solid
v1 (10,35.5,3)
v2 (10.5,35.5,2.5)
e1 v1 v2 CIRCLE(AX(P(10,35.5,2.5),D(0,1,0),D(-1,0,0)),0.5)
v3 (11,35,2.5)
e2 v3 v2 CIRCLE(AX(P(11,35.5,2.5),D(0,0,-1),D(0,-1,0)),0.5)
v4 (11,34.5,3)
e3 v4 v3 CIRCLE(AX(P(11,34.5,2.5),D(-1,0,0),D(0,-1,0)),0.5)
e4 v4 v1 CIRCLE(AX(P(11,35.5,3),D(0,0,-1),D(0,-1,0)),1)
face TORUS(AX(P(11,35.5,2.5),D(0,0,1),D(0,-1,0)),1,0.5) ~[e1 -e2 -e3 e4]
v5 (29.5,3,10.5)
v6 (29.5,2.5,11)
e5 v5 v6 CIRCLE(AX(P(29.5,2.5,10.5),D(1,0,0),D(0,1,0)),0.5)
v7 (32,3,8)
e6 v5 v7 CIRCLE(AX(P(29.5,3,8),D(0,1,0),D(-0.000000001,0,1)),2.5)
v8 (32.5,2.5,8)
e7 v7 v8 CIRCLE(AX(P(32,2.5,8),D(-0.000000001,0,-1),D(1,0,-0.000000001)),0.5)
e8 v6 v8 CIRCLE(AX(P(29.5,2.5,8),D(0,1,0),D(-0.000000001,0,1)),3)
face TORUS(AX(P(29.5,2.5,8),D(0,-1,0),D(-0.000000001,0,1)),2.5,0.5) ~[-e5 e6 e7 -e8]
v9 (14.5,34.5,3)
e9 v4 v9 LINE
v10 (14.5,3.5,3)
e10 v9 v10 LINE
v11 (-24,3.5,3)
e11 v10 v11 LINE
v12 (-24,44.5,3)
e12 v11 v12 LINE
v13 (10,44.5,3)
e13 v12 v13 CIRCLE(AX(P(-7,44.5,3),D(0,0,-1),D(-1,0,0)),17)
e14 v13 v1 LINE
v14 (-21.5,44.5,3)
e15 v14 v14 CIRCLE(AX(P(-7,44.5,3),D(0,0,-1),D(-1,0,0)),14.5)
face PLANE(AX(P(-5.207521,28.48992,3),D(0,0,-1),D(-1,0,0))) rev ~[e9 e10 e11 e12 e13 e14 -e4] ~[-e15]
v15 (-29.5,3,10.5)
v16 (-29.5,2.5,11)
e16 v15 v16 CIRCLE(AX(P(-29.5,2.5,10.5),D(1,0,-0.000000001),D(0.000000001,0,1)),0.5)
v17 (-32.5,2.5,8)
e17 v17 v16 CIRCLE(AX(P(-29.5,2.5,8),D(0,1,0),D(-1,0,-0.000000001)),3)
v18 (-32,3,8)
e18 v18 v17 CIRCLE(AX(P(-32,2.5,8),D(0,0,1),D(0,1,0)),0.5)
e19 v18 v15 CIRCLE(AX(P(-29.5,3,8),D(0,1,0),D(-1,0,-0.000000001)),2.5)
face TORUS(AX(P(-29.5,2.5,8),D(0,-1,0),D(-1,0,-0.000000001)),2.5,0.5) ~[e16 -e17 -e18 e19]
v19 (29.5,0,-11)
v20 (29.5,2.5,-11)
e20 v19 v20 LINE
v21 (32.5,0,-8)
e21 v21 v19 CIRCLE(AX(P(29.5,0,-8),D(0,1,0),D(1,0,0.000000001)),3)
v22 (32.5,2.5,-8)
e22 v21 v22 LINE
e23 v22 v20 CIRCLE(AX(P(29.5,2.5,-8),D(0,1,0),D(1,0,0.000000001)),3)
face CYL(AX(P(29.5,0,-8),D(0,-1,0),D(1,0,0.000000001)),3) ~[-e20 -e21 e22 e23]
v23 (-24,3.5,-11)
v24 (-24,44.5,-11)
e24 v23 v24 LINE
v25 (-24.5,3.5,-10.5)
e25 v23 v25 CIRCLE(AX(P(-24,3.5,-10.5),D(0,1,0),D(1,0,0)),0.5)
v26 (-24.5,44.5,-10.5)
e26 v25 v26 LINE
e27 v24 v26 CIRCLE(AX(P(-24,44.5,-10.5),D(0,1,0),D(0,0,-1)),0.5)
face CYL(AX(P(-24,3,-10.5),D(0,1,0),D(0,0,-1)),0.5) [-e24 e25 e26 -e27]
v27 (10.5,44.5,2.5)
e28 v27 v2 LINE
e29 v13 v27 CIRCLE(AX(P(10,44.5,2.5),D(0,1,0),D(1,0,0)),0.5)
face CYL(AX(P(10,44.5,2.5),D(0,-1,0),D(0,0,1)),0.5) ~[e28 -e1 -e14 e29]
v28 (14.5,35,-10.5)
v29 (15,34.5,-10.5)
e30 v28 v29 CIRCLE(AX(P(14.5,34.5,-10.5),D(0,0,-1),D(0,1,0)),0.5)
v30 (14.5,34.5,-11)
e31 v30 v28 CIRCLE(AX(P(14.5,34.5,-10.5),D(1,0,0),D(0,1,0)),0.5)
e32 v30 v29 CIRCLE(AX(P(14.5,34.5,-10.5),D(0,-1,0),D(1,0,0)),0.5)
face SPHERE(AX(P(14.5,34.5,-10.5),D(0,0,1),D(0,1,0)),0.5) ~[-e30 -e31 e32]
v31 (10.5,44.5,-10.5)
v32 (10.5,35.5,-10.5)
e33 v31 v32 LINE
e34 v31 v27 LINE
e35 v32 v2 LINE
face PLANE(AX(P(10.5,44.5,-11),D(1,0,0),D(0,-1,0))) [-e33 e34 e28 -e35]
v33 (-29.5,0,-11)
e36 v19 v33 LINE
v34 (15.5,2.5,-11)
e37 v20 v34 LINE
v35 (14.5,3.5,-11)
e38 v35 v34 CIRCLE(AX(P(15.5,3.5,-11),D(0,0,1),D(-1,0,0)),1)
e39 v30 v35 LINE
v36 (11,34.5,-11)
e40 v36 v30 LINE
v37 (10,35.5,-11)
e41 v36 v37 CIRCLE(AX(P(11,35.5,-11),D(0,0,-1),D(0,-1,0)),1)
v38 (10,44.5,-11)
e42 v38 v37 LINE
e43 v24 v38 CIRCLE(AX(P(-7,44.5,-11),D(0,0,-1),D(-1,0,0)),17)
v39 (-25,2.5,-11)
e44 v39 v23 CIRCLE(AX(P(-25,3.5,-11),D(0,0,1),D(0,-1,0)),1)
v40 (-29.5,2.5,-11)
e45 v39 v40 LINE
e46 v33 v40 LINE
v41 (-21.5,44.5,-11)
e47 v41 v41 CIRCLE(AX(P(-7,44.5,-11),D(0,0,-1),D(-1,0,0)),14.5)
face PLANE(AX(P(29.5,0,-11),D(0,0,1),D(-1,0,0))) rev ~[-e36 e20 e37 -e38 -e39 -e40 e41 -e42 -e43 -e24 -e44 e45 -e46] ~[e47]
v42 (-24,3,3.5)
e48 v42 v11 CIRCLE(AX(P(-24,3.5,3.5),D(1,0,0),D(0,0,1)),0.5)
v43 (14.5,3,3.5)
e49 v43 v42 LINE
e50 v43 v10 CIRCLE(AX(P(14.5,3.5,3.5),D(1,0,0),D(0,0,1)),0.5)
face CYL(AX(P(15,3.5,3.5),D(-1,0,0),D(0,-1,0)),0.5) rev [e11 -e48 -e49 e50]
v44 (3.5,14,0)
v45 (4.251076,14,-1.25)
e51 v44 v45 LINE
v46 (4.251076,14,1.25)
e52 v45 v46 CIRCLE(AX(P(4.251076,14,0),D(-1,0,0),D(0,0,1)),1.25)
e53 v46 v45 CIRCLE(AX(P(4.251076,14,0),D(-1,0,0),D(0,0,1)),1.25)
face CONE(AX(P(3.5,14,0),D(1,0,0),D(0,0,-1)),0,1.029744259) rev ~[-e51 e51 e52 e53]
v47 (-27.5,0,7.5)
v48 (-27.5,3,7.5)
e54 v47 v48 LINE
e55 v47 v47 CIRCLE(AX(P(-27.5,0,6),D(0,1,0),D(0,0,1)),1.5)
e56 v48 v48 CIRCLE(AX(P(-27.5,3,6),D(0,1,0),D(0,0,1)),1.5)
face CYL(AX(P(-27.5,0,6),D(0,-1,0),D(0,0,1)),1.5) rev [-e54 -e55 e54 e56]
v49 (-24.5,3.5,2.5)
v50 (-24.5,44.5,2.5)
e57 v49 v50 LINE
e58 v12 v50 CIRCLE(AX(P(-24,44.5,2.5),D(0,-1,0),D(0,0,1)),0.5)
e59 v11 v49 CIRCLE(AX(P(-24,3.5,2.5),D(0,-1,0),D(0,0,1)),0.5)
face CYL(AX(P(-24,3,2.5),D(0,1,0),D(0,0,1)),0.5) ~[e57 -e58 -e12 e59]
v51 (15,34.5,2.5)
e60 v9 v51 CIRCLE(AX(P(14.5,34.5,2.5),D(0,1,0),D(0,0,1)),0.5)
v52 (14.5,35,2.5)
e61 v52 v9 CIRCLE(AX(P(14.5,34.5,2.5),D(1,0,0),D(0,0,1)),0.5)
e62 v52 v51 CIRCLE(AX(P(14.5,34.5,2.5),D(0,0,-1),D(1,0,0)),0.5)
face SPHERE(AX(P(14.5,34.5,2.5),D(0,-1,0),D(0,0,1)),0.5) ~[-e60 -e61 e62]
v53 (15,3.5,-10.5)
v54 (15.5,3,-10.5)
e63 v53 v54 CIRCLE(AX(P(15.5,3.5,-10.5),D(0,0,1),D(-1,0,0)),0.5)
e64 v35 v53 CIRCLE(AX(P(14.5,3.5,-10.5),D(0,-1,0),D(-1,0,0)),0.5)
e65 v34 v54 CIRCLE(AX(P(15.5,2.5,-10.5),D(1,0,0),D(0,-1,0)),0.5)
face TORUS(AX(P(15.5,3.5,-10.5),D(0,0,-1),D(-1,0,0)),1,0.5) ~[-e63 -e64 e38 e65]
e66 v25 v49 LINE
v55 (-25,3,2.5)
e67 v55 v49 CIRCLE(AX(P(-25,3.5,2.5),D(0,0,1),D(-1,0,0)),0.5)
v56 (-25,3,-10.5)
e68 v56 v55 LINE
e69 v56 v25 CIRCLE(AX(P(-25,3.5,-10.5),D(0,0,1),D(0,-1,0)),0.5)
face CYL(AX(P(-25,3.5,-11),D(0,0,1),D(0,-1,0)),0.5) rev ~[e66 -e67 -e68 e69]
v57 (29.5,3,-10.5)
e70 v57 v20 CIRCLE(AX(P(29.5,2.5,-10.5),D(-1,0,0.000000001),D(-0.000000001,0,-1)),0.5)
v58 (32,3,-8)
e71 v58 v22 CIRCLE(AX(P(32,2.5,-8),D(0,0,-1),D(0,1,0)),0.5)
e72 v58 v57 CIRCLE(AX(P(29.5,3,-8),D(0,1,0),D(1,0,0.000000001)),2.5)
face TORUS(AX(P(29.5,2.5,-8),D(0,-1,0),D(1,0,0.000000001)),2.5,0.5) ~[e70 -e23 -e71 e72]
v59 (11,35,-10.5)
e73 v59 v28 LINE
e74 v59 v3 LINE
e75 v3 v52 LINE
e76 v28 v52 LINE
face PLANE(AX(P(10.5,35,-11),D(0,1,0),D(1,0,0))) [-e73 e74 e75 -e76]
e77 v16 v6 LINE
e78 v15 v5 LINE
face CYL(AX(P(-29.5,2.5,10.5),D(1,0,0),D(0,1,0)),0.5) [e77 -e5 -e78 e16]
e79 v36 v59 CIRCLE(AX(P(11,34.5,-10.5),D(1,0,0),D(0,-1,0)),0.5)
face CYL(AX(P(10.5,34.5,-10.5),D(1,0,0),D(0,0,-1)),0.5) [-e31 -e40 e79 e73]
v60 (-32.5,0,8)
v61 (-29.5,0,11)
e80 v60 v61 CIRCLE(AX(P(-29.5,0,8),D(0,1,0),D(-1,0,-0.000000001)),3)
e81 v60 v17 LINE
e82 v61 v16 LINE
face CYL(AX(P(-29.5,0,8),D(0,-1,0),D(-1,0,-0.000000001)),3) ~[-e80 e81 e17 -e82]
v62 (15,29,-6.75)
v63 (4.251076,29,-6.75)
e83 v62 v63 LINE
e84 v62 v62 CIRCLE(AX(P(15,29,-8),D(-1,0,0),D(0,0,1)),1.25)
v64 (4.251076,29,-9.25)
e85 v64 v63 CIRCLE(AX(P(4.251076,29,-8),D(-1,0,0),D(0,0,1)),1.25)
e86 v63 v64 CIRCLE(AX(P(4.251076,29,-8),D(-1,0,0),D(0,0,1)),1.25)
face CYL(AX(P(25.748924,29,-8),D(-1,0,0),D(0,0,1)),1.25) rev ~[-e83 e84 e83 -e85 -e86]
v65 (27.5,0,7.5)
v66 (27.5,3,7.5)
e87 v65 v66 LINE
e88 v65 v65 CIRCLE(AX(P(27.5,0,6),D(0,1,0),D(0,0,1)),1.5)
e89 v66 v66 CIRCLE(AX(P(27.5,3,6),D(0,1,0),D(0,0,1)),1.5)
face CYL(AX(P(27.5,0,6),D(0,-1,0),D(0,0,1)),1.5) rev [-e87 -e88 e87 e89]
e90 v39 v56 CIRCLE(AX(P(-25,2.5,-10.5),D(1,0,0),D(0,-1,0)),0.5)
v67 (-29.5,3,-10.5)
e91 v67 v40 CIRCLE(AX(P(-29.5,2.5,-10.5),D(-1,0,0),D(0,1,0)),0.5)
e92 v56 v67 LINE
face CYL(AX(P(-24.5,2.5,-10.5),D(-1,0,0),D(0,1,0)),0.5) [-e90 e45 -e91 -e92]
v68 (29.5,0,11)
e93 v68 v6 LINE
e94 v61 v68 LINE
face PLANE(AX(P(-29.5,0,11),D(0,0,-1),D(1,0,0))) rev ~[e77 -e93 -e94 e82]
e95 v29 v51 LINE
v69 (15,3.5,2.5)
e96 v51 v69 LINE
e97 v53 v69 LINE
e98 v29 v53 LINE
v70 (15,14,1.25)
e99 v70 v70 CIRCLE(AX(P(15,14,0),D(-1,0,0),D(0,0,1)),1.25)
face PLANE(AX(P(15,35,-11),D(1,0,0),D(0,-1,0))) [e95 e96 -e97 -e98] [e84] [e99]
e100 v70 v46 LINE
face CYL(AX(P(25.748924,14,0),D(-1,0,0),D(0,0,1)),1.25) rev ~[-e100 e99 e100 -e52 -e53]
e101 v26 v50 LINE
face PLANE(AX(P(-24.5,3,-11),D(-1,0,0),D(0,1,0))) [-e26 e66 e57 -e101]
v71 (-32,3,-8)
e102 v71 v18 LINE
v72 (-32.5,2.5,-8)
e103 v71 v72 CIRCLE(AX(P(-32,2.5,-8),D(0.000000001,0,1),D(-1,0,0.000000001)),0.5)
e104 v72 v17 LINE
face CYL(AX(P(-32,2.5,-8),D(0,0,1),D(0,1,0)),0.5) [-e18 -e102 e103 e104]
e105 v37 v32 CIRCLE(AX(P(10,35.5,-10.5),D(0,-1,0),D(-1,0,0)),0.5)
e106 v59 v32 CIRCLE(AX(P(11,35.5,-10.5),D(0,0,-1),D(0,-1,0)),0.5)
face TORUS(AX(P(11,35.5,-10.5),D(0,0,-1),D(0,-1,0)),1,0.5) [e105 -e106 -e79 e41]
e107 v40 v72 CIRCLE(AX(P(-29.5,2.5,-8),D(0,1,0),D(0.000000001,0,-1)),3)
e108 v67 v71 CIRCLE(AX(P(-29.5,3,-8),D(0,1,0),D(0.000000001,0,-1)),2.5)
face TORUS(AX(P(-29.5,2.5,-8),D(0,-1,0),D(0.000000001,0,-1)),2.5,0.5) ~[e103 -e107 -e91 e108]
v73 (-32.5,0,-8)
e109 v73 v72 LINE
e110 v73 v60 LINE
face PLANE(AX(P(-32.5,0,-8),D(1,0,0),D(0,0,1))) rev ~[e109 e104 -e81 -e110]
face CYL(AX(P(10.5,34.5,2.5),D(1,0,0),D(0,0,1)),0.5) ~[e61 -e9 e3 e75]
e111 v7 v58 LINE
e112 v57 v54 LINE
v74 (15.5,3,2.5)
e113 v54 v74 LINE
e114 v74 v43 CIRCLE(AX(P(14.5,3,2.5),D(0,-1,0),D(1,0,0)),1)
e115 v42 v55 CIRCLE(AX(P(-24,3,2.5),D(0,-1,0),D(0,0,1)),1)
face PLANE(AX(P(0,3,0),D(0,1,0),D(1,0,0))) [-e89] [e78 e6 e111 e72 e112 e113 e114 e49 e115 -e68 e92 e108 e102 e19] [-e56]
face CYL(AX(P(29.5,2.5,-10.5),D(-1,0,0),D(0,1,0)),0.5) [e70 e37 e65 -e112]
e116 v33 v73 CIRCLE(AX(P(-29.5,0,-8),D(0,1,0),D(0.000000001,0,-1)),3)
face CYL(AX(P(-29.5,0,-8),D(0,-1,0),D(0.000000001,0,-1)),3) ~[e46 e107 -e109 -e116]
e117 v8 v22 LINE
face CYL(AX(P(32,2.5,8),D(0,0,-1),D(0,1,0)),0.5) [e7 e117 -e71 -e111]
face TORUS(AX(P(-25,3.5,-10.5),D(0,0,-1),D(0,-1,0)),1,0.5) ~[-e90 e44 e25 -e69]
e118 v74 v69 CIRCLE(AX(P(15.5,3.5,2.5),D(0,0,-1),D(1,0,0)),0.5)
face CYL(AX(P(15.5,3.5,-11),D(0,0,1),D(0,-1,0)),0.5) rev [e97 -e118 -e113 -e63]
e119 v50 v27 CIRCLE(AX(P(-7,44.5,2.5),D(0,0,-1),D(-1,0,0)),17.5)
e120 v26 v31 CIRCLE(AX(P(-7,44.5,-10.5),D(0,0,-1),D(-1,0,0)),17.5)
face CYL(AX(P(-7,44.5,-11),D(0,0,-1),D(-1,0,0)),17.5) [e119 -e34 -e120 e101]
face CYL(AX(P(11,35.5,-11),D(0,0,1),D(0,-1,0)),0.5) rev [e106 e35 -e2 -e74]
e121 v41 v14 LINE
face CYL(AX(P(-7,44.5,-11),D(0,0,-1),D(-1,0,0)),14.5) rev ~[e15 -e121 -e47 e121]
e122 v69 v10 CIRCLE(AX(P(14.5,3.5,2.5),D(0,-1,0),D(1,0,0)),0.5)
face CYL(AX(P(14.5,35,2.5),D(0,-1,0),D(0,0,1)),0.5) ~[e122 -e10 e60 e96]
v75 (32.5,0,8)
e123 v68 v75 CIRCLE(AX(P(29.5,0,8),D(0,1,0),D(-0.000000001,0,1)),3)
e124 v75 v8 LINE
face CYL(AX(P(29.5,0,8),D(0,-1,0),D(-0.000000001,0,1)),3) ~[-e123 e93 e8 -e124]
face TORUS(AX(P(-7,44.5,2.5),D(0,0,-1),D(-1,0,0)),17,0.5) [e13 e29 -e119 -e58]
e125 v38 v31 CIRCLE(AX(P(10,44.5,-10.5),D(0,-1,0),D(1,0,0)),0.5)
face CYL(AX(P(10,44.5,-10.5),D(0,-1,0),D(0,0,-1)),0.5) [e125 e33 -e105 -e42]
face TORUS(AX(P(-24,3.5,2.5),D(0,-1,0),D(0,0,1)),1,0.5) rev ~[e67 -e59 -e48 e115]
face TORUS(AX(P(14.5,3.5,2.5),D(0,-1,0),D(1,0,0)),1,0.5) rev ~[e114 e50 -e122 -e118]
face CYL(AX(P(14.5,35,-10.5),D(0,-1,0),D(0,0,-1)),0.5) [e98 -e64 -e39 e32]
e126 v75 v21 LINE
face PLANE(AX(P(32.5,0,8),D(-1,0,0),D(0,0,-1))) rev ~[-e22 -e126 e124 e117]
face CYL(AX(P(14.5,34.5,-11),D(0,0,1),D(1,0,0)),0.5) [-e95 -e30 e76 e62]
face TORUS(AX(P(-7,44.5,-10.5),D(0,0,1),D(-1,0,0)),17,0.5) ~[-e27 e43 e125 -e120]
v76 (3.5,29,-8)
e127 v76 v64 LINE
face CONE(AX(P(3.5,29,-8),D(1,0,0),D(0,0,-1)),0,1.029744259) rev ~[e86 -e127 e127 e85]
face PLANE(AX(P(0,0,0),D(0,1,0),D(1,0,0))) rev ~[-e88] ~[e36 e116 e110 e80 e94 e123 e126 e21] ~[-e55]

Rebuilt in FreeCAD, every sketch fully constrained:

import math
import FreeCAD as App
import Part
import Sketcher

V = App.Vector


def edges_at(feature, points):
    """Names of the edges that pass closest to the given points."""
    edges = feature.Shape.Edges
    near = lambda p: min(range(len(edges)), key=lambda i: edges[i].distToShape(Part.Vertex(*p))[0])
    return sorted({f"Edge{near(p) + 1}" for p in points})

doc = App.newDocument("Part")
body = doc.addObject("PartDesign::Body", "Body")

sketch1 = doc.addObject("Sketcher::SketchObject", "Sketch")
body.addObject(sketch1)
sketch1.AttachmentSupport = (doc.XZ_Plane, [""])
sketch1.MapMode = "FlatFace"
sketch1.addGeometry([
    Part.LineSegment(V(-29.5, 11, 0), V(29.5, 11, 0)),
    Part.ArcOfCircle(Part.Circle(V(29.5, 8, 0), V(0, 0, 1), 3), math.radians(0), math.radians(90)),
    Part.LineSegment(V(32.5, 8, 0), V(32.5, -8, 0)),
    Part.ArcOfCircle(Part.Circle(V(29.5, -8, 0), V(0, 0, 1), 3), math.radians(-90), math.radians(0)),
    Part.LineSegment(V(29.5, -11, 0), V(-29.5, -11, 0)),
    Part.ArcOfCircle(Part.Circle(V(-29.5, -8, 0), V(0, 0, 1), 3), math.radians(180), math.radians(270)),
    Part.LineSegment(V(-32.5, -8, 0), V(-32.5, 8, 0)),
    Part.ArcOfCircle(Part.Circle(V(-29.5, 8, 0), V(0, 0, 1), 3), math.radians(90), math.radians(180)),
    Part.Circle(V(-27.5, 6, 0), V(0, 0, 1), 1.5),
    Part.Circle(V(27.5, 6, 0), V(0, 0, 1), 1.5),
], False)
sketch1.addConstraint([
    Sketcher.Constraint("Tangent", 0, 2, 1, 2),
    Sketcher.Constraint("Tangent", 1, 1, 2, 1),
    Sketcher.Constraint("Tangent", 2, 2, 3, 2),
    Sketcher.Constraint("Tangent", 3, 1, 4, 1),
    Sketcher.Constraint("Tangent", 4, 2, 5, 2),
    Sketcher.Constraint("Tangent", 5, 1, 6, 1),
    Sketcher.Constraint("Tangent", 6, 2, 7, 2),
    Sketcher.Constraint("Tangent", 7, 1, 0, 1),
    Sketcher.Constraint("Horizontal", 0),
    Sketcher.Constraint("Vertical", 2),
    Sketcher.Constraint("Horizontal", 4),
    Sketcher.Constraint("Vertical", 6),
    Sketcher.Constraint("Equal", 1, 3),
    Sketcher.Constraint("Equal", 3, 5),
    Sketcher.Constraint("Equal", 5, 7),
    Sketcher.Constraint("Equal", 8, 9),
    Sketcher.Constraint("Symmetric", 1, 3, 5, 3, -1, 1),
    Sketcher.Constraint("Symmetric", 8, 3, 9, 3, -2),
    Sketcher.Constraint("Diameter", 8, 3.0),
    Sketcher.Constraint("Radius", 1, 3.0),
    Sketcher.Constraint("DistanceX", 0, 1, 0, 2, 59.0),
    Sketcher.Constraint("DistanceY", 2, 2, 2, 1, 16.0),
    Sketcher.Constraint("DistanceY", -1, 1, 8, 3, 6.0),
    Sketcher.Constraint("DistanceX", 7, 3, 8, 3, 2.0),
])
pad1 = doc.addObject("PartDesign::Pad", "Pad")
body.addObject(pad1)
pad1.Profile = sketch1
pad1.Length = 3
pad1.Reversed = True

sketch2 = doc.addObject("Sketcher::SketchObject", "Sketch001")
body.addObject(sketch2)
sketch2.AttachmentSupport = (doc.XY_Plane, [""])
sketch2.MapMode = "FlatFace"
sketch2.AttachmentOffset = App.Placement(V(0, 0, -11), App.Rotation())
sketch2.addGeometry([
    Part.LineSegment(V(-24.5, 3, 0), V(-24.5, 44.5, 0)),
    Part.ArcOfCircle(Part.Circle(V(-7, 44.5, 0), V(0, 0, 1), 17.5), math.radians(0), math.radians(180)),
    Part.LineSegment(V(10.5, 44.5, 0), V(10.5, 35, 0)),
    Part.LineSegment(V(10.5, 35, 0), V(15, 35, 0)),
    Part.LineSegment(V(15, 35, 0), V(15, 3, 0)),
    Part.LineSegment(V(15, 3, 0), V(-24.5, 3, 0)),
    Part.Circle(V(-7, 44.5, 0), V(0, 0, 1), 14.5),
], False)
sketch2.addConstraint([
    Sketcher.Constraint("Tangent", 0, 2, 1, 2),
    Sketcher.Constraint("Tangent", 1, 1, 2, 1),
    Sketcher.Constraint("Coincident", 2, 2, 3, 1),
    Sketcher.Constraint("Coincident", 3, 2, 4, 1),
    Sketcher.Constraint("Coincident", 4, 2, 5, 1),
    Sketcher.Constraint("Coincident", 5, 2, 0, 1),
    Sketcher.Constraint("Vertical", 0),
    Sketcher.Constraint("Vertical", 2),
    Sketcher.Constraint("Horizontal", 3),
    Sketcher.Constraint("Vertical", 4),
    Sketcher.Constraint("Horizontal", 5),
    Sketcher.Constraint("Coincident", 6, 3, 1, 3),
    Sketcher.Constraint("Diameter", 6, 29.0),
    Sketcher.Constraint("Radius", 1, 17.5),
    Sketcher.Constraint("DistanceY", 4, 2, 4, 1, 32.0),
    Sketcher.Constraint("DistanceX", 3, 1, 3, 2, 4.5),
    Sketcher.Constraint("DistanceY", 0, 1, 0, 2, 41.5),
    Sketcher.Constraint("DistanceX", 1, 3, -1, 1, 7.0),
    Sketcher.Constraint("DistanceY", -1, 1, 2, 2, 35.0),
])
pad2 = doc.addObject("PartDesign::Pad", "Pad001")
body.addObject(pad2)
pad2.Profile = sketch2
pad2.Length = 14

sketch3 = doc.addObject("Sketcher::SketchObject", "Sketch002")
body.addObject(sketch3)
sketch3.AttachmentSupport = (doc.YZ_Plane, [""])
sketch3.MapMode = "FlatFace"
sketch3.AttachmentOffset = App.Placement(V(0, 0, 15), App.Rotation())
sketch3.addGeometry([
    Part.Circle(V(14, 0, 0), V(0, 0, 1), 1.2),
    Part.Circle(V(29, -8, 0), V(0, 0, 1), 1.2),
], False)
sketch3.addConstraint([
    Sketcher.Constraint("Equal", 0, 1),
    Sketcher.Constraint("PointOnObject", 0, 3, -1),
    Sketcher.Constraint("Diameter", 0, 2.5),
    Sketcher.Constraint("DistanceX", -1, 1, 0, 3, 14.0),
    Sketcher.Constraint("DistanceX", -1, 1, 1, 3, 29.0),
    Sketcher.Constraint("DistanceY", 1, 3, -1, 1, 8.0),
])
doc.recompute()
hole = doc.addObject("PartDesign::Hole", "Hole")
body.addObject(hole)
hole.Profile = sketch3
hole.ThreadType = "None"
hole.Diameter = 2.5
hole.DepthType = "Dimension"
hole.Depth = 10.748924
hole.DrillPoint = "Angled"
hole.DrillPointAngle = 118
doc.recompute()

fillet = doc.addObject("PartDesign::Fillet", "Fillet")
body.addObject(fillet)
fillet.Base = (hole, edges_at(hole, [
    (-31.621, 3, -10.121),
    (-32.5, 3, 0),
    (-31.621, 3, 10.121),
    (0, 3, 11),
    (31.621, 3, 10.121),
    (32.5, 3, 0),
    (-27, 3, -11),
    (-24.5, 23.75, -11),
    (-24.5, 3, -4),
    (15, 19, 3),
    (15, 3, -4),
    (12.75, 35, 3),
    (15, 35, -4),
    (10.5, 39.75, 3),
    (10.5, 35, -4),
    (-7, 62, 3),
    (-24.5, 23.75, 3),
    (-4.75, 3, 3),
    (-7, 62, -11),
    (10.5, 39.75, -11),
    (12.75, 35, -11),
    (15, 19, -11),
    (31.621, 3, -10.121),
    (22.25, 3, -11),
]))
fillet.Radius = 0.5

doc.recompute()
